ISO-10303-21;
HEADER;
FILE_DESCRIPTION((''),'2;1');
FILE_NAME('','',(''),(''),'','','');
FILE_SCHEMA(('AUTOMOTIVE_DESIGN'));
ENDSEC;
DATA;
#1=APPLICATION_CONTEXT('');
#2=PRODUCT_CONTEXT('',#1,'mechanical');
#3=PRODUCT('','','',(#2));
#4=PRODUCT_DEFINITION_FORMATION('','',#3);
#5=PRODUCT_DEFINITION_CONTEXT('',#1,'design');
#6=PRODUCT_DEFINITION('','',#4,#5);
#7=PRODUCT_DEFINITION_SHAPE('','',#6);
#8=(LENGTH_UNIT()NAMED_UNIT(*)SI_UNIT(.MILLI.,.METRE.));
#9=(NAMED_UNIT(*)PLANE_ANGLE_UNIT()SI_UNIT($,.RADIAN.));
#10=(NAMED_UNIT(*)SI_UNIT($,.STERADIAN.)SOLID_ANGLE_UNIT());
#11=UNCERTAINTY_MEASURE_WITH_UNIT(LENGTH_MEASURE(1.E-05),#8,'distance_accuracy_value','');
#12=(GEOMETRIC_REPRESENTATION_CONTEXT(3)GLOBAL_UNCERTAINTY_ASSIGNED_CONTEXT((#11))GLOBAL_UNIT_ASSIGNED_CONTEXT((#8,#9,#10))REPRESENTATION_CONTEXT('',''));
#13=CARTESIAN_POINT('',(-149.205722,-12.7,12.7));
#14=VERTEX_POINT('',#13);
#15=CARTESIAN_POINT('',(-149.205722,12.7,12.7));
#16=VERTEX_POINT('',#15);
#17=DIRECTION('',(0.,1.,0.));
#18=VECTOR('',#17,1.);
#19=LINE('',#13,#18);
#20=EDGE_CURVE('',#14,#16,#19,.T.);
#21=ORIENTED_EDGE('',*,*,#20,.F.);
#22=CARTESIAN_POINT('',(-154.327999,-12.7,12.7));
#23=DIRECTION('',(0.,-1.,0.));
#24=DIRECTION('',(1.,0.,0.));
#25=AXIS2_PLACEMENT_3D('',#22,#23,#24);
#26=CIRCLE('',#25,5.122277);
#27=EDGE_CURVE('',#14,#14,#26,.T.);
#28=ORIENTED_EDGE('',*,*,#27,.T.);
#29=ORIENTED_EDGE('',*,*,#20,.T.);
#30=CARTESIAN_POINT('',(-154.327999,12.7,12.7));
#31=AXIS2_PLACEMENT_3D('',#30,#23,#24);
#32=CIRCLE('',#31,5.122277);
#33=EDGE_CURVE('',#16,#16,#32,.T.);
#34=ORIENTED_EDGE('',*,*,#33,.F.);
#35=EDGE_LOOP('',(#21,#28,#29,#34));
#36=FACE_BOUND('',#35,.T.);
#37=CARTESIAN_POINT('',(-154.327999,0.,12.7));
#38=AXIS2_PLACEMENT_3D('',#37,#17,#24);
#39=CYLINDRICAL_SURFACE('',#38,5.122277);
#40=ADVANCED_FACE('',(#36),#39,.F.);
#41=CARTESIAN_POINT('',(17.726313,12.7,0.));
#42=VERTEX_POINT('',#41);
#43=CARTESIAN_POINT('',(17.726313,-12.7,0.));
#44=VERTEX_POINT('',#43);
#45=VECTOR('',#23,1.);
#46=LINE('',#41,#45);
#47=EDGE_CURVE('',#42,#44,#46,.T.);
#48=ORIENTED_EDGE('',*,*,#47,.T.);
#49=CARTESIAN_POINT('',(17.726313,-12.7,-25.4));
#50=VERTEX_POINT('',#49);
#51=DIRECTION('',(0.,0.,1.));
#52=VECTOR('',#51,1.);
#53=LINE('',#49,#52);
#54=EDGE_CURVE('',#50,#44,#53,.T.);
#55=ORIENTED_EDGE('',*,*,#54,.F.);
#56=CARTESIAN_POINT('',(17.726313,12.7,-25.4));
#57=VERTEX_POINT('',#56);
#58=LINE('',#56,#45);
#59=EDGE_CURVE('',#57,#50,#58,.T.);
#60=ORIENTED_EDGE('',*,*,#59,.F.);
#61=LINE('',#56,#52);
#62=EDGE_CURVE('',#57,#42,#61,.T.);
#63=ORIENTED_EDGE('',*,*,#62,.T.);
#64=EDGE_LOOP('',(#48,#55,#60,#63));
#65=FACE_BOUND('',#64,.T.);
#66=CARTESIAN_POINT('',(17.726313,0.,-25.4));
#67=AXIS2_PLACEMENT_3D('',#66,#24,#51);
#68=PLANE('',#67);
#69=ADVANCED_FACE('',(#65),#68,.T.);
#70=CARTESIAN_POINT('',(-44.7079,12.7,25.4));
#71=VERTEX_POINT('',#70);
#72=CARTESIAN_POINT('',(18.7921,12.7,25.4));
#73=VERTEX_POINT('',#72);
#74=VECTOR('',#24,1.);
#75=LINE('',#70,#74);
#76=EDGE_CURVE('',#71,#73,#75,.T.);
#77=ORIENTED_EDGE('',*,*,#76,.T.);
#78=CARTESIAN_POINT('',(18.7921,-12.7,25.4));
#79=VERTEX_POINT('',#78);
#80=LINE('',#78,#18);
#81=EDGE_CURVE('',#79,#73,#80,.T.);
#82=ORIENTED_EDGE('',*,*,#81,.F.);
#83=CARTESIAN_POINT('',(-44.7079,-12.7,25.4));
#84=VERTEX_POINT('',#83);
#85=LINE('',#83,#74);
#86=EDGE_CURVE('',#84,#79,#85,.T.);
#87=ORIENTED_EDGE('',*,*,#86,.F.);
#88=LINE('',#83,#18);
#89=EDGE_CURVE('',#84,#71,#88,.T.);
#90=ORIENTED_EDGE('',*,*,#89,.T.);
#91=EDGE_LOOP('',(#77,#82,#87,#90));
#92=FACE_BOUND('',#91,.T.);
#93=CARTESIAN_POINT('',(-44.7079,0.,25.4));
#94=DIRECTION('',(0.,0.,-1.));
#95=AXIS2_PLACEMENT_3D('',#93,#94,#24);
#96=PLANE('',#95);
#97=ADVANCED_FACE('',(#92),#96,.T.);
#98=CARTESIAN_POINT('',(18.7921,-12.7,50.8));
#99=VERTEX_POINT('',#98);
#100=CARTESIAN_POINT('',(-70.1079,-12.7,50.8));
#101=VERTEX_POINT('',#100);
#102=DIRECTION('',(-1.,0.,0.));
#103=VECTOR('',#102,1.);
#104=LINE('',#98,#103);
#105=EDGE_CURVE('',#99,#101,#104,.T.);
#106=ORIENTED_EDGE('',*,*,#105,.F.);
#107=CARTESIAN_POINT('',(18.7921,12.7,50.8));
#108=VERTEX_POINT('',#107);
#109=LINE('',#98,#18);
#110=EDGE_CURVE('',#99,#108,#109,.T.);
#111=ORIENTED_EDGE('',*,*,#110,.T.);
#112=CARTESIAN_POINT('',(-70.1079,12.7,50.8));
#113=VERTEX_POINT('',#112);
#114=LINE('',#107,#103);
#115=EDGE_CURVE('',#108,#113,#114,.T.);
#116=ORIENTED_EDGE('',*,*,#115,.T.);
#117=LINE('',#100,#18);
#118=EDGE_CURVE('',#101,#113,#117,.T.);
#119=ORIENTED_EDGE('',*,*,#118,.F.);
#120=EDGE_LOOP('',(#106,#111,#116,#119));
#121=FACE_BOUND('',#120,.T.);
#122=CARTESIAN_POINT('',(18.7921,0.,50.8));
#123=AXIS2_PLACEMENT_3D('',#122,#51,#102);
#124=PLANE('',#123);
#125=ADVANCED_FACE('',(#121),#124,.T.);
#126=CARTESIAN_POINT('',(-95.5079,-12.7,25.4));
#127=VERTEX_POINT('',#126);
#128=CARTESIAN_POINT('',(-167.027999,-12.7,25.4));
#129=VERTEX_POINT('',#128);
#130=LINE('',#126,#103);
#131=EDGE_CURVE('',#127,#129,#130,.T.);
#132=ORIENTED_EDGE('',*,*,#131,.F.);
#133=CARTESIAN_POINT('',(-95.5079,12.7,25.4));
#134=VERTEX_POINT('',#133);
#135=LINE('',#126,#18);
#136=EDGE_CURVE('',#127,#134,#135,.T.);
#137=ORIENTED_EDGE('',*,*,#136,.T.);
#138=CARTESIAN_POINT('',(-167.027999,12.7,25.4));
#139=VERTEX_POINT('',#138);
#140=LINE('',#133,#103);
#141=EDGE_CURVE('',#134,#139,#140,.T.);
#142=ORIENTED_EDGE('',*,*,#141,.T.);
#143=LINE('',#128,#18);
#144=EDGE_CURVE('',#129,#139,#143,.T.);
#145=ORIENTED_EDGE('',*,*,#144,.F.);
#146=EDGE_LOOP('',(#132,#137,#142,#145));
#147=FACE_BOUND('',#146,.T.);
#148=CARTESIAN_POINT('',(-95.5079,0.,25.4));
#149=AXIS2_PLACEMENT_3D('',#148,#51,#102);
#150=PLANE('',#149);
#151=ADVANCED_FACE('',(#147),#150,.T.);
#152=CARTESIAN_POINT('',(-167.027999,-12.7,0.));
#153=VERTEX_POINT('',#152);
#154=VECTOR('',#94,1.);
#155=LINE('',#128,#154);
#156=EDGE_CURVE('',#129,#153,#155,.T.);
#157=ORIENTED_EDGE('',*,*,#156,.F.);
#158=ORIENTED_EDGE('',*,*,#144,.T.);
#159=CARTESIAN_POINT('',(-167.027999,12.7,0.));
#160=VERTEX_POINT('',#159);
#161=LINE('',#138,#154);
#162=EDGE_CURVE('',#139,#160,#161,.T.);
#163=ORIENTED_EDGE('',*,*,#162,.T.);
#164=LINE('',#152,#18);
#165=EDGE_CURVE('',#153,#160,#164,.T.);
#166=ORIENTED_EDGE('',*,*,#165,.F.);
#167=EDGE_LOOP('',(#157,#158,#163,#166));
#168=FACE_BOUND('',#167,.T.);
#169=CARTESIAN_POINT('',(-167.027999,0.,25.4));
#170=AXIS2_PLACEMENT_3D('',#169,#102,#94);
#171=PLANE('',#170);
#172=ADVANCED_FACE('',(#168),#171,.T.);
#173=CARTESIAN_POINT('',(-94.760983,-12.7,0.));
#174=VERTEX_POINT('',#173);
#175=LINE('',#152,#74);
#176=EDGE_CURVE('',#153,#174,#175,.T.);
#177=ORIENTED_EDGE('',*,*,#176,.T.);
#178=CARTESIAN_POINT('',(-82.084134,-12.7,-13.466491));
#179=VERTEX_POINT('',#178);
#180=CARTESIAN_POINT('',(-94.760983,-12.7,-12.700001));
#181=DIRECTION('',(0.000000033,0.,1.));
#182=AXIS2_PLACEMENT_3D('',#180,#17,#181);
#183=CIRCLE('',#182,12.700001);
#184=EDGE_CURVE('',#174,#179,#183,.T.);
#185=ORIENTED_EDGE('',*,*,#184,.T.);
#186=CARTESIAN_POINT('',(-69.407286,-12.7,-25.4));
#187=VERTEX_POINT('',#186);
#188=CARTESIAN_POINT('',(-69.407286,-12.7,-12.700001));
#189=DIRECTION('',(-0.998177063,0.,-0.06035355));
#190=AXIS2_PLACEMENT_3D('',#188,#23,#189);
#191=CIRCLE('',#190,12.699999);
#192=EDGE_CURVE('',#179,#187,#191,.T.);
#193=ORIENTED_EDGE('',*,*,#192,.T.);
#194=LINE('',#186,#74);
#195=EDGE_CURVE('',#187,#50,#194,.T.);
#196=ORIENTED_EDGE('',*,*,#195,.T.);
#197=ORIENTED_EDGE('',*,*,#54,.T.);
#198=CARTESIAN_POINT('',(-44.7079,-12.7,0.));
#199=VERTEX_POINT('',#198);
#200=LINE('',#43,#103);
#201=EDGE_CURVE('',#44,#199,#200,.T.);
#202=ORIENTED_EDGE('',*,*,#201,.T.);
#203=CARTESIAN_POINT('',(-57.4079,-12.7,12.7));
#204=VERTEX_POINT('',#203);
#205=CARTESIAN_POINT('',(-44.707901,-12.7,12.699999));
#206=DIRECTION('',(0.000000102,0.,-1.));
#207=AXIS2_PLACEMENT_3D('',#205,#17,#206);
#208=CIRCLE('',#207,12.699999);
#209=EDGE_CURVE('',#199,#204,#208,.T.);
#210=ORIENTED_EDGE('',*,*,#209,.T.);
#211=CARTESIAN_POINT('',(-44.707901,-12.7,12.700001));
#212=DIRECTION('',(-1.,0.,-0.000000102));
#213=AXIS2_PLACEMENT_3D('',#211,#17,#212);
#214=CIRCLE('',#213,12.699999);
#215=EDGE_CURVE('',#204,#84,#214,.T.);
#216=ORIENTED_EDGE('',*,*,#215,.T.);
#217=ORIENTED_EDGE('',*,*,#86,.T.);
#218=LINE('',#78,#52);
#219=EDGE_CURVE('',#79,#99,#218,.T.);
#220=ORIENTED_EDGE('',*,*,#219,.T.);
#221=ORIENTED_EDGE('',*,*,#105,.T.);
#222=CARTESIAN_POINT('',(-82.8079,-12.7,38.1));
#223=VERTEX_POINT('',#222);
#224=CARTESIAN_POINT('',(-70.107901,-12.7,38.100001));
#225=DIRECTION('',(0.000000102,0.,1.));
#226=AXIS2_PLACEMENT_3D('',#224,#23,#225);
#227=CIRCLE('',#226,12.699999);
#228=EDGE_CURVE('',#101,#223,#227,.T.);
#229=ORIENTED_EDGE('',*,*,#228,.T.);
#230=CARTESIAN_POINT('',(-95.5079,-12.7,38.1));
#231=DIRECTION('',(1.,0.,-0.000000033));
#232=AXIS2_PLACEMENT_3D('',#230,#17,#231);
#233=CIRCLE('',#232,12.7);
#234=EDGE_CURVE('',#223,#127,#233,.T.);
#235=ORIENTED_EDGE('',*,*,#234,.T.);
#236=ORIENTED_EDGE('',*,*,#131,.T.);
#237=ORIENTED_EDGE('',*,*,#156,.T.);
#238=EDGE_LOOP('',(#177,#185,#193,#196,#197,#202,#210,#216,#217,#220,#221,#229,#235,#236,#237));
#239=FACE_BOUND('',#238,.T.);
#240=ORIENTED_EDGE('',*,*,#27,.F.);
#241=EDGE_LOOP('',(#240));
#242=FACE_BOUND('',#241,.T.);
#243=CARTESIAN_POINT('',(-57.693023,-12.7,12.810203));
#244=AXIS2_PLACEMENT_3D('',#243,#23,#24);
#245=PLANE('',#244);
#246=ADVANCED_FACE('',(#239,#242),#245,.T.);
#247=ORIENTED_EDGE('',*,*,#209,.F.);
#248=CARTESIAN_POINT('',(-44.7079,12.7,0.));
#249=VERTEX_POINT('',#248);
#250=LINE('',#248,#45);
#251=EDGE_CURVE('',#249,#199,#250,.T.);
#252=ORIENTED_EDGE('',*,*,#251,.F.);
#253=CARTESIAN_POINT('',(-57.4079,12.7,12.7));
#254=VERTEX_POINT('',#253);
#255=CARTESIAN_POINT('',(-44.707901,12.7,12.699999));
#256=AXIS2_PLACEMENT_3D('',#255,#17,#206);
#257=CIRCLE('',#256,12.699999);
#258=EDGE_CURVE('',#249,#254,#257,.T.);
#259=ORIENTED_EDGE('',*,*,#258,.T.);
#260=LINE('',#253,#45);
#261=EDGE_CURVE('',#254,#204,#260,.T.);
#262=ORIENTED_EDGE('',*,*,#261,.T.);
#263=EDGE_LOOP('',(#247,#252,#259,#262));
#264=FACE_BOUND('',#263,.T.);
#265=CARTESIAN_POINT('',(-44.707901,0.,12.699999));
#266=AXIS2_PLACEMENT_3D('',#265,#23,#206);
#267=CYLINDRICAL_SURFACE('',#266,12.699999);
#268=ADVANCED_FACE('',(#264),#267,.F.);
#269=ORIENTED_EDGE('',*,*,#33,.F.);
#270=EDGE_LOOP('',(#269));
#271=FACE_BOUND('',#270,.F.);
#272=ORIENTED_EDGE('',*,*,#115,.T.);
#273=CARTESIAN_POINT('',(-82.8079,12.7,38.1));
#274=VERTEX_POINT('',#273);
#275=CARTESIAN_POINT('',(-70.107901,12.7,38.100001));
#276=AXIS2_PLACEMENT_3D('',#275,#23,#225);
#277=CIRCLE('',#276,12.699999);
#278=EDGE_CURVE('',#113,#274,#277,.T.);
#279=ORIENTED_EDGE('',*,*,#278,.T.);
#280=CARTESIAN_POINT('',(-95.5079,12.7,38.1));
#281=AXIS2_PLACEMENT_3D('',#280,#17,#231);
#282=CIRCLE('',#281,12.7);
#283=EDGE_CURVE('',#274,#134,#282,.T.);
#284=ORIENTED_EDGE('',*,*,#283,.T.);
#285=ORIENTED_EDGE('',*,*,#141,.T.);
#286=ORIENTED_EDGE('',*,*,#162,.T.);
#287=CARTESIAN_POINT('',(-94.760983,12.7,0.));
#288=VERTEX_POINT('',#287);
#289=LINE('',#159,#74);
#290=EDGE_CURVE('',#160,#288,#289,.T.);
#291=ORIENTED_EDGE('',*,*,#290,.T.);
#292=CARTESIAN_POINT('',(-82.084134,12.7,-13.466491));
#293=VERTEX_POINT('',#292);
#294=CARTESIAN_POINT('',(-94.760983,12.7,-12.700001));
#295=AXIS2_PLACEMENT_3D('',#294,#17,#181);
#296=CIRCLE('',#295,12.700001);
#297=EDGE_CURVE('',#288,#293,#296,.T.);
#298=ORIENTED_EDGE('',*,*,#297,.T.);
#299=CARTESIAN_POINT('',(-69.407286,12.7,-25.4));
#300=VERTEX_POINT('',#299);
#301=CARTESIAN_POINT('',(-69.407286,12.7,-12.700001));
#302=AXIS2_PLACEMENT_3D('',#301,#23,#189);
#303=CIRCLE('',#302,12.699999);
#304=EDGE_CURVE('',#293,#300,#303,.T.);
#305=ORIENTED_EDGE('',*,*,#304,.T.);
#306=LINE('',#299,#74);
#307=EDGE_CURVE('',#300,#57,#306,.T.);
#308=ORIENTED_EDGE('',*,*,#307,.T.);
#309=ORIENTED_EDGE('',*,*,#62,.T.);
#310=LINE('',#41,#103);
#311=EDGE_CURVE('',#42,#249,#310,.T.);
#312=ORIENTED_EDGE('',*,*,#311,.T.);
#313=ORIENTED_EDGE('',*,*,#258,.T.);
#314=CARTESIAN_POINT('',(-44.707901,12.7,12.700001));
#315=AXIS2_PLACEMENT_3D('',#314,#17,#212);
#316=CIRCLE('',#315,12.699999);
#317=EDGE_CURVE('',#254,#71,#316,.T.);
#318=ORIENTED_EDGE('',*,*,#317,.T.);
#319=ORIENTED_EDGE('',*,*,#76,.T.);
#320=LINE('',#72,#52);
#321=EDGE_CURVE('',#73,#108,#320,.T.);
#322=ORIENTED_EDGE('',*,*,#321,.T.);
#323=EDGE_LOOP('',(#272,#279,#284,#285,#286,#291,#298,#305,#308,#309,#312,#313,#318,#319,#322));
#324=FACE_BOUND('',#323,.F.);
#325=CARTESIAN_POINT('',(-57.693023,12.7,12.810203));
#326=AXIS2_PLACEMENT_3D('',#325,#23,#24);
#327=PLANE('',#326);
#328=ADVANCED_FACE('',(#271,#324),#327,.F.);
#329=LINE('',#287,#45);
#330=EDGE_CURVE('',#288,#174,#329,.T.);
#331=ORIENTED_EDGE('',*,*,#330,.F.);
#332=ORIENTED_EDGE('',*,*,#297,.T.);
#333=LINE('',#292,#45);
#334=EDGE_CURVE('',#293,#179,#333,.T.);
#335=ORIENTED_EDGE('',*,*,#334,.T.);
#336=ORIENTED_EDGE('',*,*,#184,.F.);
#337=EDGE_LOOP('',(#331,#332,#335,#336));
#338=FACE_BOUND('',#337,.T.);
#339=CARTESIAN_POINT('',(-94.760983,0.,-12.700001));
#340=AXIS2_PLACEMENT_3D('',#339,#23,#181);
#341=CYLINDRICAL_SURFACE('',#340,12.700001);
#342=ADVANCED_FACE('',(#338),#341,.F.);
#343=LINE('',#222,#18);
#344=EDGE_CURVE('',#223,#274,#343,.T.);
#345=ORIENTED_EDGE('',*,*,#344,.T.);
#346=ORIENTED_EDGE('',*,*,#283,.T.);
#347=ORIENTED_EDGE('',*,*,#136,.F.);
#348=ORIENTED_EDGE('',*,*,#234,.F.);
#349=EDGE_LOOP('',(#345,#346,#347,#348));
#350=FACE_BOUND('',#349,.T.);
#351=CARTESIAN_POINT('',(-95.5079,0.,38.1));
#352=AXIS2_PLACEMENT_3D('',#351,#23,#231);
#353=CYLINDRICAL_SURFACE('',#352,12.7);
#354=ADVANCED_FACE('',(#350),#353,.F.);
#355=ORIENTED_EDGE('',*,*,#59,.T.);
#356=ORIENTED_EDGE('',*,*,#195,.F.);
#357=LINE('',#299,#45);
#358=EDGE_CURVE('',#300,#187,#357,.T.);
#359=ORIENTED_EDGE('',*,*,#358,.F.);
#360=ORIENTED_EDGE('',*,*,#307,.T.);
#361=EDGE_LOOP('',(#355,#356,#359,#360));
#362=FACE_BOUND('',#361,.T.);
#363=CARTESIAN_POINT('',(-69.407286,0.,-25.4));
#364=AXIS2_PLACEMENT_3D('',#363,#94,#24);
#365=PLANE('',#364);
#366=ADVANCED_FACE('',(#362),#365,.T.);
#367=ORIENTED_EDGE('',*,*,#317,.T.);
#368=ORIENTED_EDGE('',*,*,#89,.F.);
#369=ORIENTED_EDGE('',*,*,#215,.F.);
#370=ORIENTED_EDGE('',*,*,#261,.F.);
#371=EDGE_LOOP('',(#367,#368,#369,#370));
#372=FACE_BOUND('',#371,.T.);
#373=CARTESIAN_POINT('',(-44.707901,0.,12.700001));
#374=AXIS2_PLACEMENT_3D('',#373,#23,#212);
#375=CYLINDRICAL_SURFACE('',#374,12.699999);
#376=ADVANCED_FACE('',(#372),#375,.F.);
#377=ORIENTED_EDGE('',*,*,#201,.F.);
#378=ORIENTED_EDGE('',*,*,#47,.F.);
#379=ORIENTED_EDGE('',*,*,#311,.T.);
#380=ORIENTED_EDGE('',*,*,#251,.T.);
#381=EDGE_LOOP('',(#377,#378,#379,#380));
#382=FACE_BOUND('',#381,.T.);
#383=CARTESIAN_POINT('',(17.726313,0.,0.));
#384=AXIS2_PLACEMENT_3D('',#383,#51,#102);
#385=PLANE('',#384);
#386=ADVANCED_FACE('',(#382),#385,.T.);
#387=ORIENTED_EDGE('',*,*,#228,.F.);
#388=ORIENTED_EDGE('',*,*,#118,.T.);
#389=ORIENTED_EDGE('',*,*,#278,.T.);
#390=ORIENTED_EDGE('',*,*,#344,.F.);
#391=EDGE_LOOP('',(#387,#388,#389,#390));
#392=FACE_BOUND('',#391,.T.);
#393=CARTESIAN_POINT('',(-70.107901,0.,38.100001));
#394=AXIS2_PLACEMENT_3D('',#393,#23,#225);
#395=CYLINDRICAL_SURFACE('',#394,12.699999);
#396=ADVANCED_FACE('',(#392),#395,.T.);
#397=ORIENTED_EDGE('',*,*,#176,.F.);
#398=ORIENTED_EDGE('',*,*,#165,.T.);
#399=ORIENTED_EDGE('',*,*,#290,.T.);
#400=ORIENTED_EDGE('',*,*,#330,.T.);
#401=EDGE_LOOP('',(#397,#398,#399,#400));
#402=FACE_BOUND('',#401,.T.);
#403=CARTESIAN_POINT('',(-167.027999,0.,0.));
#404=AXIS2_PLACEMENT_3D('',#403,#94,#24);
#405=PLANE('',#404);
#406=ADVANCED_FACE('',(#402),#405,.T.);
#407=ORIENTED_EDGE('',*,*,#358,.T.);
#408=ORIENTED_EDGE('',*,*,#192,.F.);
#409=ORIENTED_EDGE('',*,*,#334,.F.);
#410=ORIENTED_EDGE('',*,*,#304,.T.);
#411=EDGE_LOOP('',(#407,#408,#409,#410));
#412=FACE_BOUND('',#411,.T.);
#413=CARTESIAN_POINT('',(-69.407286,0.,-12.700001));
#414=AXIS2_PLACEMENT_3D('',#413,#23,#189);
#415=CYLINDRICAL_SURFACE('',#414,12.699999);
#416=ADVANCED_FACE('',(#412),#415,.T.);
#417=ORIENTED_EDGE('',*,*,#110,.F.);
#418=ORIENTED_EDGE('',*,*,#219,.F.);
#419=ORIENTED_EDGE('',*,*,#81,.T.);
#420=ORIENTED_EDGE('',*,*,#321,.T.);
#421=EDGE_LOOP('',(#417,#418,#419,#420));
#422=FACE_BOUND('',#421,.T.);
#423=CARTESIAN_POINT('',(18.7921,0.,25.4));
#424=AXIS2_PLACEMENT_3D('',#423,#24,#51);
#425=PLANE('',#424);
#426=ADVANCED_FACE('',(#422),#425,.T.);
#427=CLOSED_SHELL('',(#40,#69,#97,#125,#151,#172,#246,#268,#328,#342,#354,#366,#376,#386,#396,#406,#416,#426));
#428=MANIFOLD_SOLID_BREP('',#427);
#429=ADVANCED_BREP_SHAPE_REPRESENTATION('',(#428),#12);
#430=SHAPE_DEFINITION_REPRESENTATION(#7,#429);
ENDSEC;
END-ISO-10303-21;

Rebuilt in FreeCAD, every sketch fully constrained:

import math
import FreeCAD as App
import Part
import Sketcher

V = App.Vector
Q = App.Units.Quantity

doc = App.newDocument("Part")
body = doc.addObject("PartDesign::Body", "Body")

# Sketch on XZ plane
sketch1 = doc.addObject("Sketcher::SketchObject", "Sketch")
body.addObject(sketch1)
sketch1.AttachmentSupport = (doc.XZ_Plane, [""])
sketch1.MapMode = "FlatFace"
sketch1.addGeometry([
    Part.LineSegment(V(-167.027999, 0, 0), V(-94.760983, 0, 0)),  # 0
    Part.ArcOfCircle(Part.Circle(V(-94.760983, -12.700001, 0), V(0, 0, 1), 12.700001), math.radians(-3.460107), math.radians(89.999998)),  # 1
    Part.ArcOfCircle(Part.Circle(V(-69.407286, -12.700001, 0), V(0, 0, 1), 12.699999), math.radians(-176.539894), math.radians(-89.999999)),  # 2
    Part.LineSegment(V(-69.407286, -25.4, 0), V(17.726313, -25.4, 0)),  # 3
    Part.LineSegment(V(17.726313, -25.4, 0), V(17.726313, 0, 0)),  # 4
    Part.LineSegment(V(17.726313, 0, 0), V(-44.7079, 0, 0)),  # 5
    Part.ArcOfCircle(Part.Circle(V(-44.707901, 12.699999, 0), V(0, 0, 1), 12.699999), math.radians(179.999994), math.radians(270.000006)),  # 6
    Part.ArcOfCircle(Part.Circle(V(-44.707901, 12.700001, 0), V(0, 0, 1), 12.699999), math.radians(89.999994), math.radians(180.000006)),  # 7
    Part.LineSegment(V(-44.7079, 25.4, 0), V(18.7921, 25.4, 0)),  # 8
    Part.LineSegment(V(18.7921, 25.4, 0), V(18.7921, 50.8, 0)),  # 9
    Part.LineSegment(V(18.7921, 50.8, 0), V(-70.1079, 50.8, 0)),  # 10
    Part.ArcOfCircle(Part.Circle(V(-70.107901, 38.100001, 0), V(0, 0, 1), 12.699999), math.radians(89.999994), math.radians(180.000006)),  # 11
    Part.ArcOfCircle(Part.Circle(V(-95.5079, 38.1, 0), V(0, 0, 1), 12.7), math.radians(-89.999998), math.radians(-0.000002)),  # 12
    Part.LineSegment(V(-95.5079, 25.4, 0), V(-167.027999, 25.4, 0)),  # 13
    Part.LineSegment(V(-167.027999, 25.4, 0), V(-167.027999, 0, 0)),  # 14
    Part.Circle(V(-154.327999, 12.7, 0), V(0, 0, 1), 5.122277),  # 15
], False)
sketch1.addConstraint([
    Sketcher.Constraint("Tangent", 0, 2, 1, 2),
    Sketcher.Constraint("Coincident", 1, 1, 2, 1),
    Sketcher.Constraint("Tangent", 2, 2, 3, 1),
    Sketcher.Constraint("Coincident", 3, 2, 4, 1),
    Sketcher.Constraint("Coincident", 4, 2, 5, 1),
    Sketcher.Constraint("Tangent", 5, 2, 6, 2),
    Sketcher.Constraint("Tangent", 6, 1, 7, 2),
    Sketcher.Constraint("Tangent", 7, 1, 8, 1),
    Sketcher.Constraint("Coincident", 8, 2, 9, 1),
    Sketcher.Constraint("Coincident", 9, 2, 10, 1),
    Sketcher.Constraint("Tangent", 10, 2, 11, 1),
    Sketcher.Constraint("Tangent", 11, 2, 12, 2),
    Sketcher.Constraint("Tangent", 12, 1, 13, 1),
    Sketcher.Constraint("Coincident", 13, 2, 14, 1),
    Sketcher.Constraint("Coincident", 14, 2, 0, 1),
    Sketcher.Constraint("Horizontal", 0),
    Sketcher.Constraint("Horizontal", 3),
    Sketcher.Constraint("Vertical", 4),
    Sketcher.Constraint("Horizontal", 5),
    Sketcher.Constraint("Horizontal", 8),
    Sketcher.Constraint("Vertical", 9),
    Sketcher.Constraint("Horizontal", 10),
    Sketcher.Constraint("Horizontal", 13),
    Sketcher.Constraint("Vertical", 14),
    Sketcher.Constraint("Equal", 1, 2),
    Sketcher.Constraint("Equal", 2, 6),
    Sketcher.Constraint("Equal", 6, 7),
    Sketcher.Constraint("Equal", 7, 11),
    Sketcher.Constraint("Equal", 11, 12),
    Sketcher.Constraint("PointOnObject", 0, 2, -1),
    Sketcher.Constraint("PointOnObject", 4, 2, -1),
    Sketcher.Constraint("Horizontal", 1, 3, 2, 3),
    Sketcher.Constraint("Horizontal", 11, 3, 12, 3),
    Sketcher.Constraint("Horizontal", 7, 3, 15, 3),
    Sketcher.Constraint("Horizontal", 15, 3, 6, 1),
    Sketcher.Constraint("Horizontal", 8, 2, 12, 1),
    Sketcher.Constraint("Radius", 1, Q("0.5 in")),
    Sketcher.Constraint("DistanceX", 8, 1, 8, 2, Q("2.5 in")),
    Sketcher.Constraint("DistanceX", 10, 2, 10, 1, Q("3.5 in")),
    Sketcher.Constraint("DistanceX", 13, 2, 15, 3, Q("0.5 in")),
    Sketcher.Constraint("Diameter", 15, 10.244554),
    Sketcher.Constraint("DistanceX", 3, 1, 3, 2, 87.133599),
    Sketcher.Constraint("DistanceX", 13, 2, 13, 1, 71.520099),
    Sketcher.Constraint("DistanceX", 6, 3, -1, 1, 44.707901),
    Sketcher.Constraint("DistanceX", 0, 1, 0, 2, 72.267016),
    Sketcher.Constraint("DistanceX", 5, 2, 5, 1, 62.434213),
])
pad1 = doc.addObject("PartDesign::Pad", "Pad")
body.addObject(pad1)
pad1.Profile = sketch1
pad1.Length = Q("1 in")
pad1.Midplane = True

doc.recompute()
